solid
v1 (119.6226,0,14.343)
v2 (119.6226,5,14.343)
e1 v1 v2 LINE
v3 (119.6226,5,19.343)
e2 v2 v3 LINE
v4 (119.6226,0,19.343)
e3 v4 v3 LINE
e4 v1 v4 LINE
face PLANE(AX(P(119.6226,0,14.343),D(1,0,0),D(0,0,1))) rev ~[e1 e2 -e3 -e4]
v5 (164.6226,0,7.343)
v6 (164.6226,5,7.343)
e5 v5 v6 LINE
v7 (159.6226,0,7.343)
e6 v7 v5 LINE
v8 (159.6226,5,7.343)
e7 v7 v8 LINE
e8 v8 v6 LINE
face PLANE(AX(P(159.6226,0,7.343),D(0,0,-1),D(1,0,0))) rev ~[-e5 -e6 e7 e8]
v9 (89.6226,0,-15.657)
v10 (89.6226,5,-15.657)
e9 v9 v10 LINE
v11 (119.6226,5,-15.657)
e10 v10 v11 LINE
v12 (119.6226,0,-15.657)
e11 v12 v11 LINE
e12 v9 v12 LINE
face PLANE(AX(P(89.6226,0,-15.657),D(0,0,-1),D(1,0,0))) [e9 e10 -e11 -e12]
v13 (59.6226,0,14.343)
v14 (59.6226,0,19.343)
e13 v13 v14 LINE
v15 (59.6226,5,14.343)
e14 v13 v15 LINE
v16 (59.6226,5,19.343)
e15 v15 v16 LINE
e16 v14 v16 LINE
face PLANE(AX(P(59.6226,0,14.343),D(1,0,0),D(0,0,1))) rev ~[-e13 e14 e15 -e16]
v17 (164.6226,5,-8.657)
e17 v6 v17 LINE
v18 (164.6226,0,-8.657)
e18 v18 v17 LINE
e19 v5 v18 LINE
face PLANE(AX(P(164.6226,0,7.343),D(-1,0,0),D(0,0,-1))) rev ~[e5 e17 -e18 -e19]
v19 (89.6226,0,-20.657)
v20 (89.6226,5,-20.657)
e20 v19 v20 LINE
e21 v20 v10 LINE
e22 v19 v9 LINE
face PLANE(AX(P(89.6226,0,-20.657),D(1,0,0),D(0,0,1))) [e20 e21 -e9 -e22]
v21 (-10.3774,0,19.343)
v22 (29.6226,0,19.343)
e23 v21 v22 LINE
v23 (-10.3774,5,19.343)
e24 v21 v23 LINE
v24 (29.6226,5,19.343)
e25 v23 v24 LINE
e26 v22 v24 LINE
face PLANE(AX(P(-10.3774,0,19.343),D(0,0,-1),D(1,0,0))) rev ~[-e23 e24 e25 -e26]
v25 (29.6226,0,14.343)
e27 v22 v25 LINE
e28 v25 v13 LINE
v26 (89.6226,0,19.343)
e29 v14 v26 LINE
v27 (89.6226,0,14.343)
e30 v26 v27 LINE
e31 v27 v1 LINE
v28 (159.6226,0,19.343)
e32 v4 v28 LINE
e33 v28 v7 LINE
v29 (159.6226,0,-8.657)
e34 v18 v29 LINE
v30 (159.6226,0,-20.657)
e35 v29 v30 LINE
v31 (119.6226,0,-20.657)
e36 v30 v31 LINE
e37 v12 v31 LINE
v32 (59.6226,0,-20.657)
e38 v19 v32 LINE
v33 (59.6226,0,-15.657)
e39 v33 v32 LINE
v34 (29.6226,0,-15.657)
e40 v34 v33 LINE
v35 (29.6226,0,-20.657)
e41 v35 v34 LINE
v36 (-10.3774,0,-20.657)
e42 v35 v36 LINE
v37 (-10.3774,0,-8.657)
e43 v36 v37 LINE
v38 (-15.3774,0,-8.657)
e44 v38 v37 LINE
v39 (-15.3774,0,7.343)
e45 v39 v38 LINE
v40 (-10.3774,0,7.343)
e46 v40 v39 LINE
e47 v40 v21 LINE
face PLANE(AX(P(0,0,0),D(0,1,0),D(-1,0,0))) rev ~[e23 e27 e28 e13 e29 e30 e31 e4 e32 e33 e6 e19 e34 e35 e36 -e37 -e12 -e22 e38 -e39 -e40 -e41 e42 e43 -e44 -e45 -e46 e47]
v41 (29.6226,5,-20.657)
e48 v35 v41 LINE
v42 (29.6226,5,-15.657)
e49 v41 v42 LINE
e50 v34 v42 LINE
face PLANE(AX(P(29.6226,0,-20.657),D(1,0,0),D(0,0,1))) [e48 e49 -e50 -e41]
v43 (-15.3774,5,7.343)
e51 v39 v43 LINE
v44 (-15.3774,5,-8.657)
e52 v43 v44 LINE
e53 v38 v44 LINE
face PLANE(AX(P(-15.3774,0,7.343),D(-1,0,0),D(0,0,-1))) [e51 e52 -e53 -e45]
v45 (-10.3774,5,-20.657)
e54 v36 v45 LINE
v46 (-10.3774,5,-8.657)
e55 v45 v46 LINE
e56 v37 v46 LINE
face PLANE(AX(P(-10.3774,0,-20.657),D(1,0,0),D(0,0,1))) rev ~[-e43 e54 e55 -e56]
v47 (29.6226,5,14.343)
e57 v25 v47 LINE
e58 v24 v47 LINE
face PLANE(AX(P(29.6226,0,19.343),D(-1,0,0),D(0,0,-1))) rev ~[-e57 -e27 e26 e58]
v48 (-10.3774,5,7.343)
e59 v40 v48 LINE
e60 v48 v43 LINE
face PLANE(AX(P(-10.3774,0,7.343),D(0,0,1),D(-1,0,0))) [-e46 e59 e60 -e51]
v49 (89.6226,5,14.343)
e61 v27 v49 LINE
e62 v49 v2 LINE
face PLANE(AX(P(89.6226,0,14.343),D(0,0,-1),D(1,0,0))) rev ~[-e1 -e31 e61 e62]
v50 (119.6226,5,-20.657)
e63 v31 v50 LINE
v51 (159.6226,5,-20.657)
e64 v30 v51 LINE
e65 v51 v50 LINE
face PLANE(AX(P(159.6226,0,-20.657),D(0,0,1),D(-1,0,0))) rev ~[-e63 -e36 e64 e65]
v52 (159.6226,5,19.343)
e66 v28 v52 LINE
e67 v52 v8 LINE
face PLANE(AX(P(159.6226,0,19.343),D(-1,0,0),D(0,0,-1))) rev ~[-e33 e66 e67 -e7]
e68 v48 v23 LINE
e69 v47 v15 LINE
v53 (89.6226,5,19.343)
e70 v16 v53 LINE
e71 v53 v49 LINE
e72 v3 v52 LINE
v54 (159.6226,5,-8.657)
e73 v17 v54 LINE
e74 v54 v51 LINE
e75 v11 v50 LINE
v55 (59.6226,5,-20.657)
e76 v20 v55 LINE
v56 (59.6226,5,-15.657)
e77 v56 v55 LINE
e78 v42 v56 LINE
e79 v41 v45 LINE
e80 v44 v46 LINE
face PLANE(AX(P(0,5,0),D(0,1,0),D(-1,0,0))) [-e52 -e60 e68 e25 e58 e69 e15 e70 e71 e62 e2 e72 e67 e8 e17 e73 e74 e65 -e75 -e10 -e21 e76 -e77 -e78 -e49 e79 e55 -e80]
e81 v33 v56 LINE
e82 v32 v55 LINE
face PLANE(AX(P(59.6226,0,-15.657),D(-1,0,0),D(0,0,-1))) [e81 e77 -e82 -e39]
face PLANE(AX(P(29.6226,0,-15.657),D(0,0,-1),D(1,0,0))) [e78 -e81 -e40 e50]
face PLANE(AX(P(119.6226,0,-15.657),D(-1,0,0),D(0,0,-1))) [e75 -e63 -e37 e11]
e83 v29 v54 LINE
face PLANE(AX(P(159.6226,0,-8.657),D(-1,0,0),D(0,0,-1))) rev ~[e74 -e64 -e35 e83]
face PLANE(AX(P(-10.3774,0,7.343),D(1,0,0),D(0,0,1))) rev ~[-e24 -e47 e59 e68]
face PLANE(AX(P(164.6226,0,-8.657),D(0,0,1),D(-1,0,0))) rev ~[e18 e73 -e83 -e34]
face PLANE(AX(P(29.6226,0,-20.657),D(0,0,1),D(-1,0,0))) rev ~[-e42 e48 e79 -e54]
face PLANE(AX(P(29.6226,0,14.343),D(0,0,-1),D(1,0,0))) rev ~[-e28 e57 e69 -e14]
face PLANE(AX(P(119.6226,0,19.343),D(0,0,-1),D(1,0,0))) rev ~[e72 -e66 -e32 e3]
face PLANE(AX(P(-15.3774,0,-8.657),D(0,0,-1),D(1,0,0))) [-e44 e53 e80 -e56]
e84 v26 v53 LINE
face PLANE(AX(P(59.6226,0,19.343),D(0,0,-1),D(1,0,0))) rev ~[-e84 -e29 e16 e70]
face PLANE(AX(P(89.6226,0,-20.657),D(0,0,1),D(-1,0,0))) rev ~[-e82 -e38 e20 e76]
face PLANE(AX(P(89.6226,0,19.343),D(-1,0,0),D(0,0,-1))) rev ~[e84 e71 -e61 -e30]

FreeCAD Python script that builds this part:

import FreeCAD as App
import Part
import Sketcher


def add_polygon(sketch, points):
    """Adds a closed chain of lines whose ends are joined by coincident constraints."""
    first, n = sketch.GeometryCount, len(points)
    for a, b in zip(points, points[1:] + points[:1]):
        sketch.addGeometry(Part.LineSegment(App.Vector(*a, 0), App.Vector(*b, 0)), False)
    for i in range(n):
        sketch.addConstraint(Sketcher.Constraint("Coincident", first + i, 2, first + (i + 1) % n, 1))

doc = App.newDocument("Part")
params = doc.addObject("Spreadsheet::Sheet", "Params")
for row, (alias, value) in enumerate([
    ("sketch1_width", "40 mm"),
    ("sketch1_width2", "30 mm"),
    ("sketch1_width3", "5 mm"),
    ("sketch1_height", "12 mm"),
    ("sketch1_height2", "16 mm"),
    ("pad1_length", "5 mm"),
], start=1):
    params.set(f"A{row}", alias)
    params.set(f"B{row}", "=" + value)
    params.setAlias(f"B{row}", alias)

body = doc.addObject("PartDesign::Body", "Body")

sketch1 = body.newObject("Sketcher::SketchObject", "Sketch")
sketch1.AttachmentSupport = (doc.getObject("XZ_Plane"), [""])
sketch1.MapMode = "FlatFace"
add_polygon(sketch1, [(-10, 7), (-10, 19), (30, 19), (30, 14), (60, 14), (60, 19), (90, 19), (90, 14), (120, 14), (120, 19), (160, 19), (160, 7), (165, 7), (165, -9), (160, -9), (160, -21), (120, -21), (120, -16), (90, -16), (90, -21), (60, -21), (60, -16), (30, -16), (30, -21), (-10, -21), (-10, -9), (-15, -9), (-15, 7)])
sketch1.addConstraint(Sketcher.Constraint("Vertical", 0))
sketch1.addConstraint(Sketcher.Constraint("Horizontal", 1))
sketch1.addConstraint(Sketcher.Constraint("Vertical", 2))
sketch1.addConstraint(Sketcher.Constraint("Horizontal", 3))
sketch1.addConstraint(Sketcher.Constraint("Vertical", 4))
sketch1.addConstraint(Sketcher.Constraint("Horizontal", 5))
sketch1.addConstraint(Sketcher.Constraint("Vertical", 6))
sketch1.addConstraint(Sketcher.Constraint("Horizontal", 7))
sketch1.addConstraint(Sketcher.Constraint("Vertical", 8))
sketch1.addConstraint(Sketcher.Constraint("Horizontal", 9))
sketch1.addConstraint(Sketcher.Constraint("Vertical", 10))
sketch1.addConstraint(Sketcher.Constraint("Horizontal", 11))
sketch1.addConstraint(Sketcher.Constraint("Vertical", 12))
sketch1.addConstraint(Sketcher.Constraint("Horizontal", 13))
sketch1.addConstraint(Sketcher.Constraint("Vertical", 14))
sketch1.addConstraint(Sketcher.Constraint("Horizontal", 15))
sketch1.addConstraint(Sketcher.Constraint("Vertical", 16))
sketch1.addConstraint(Sketcher.Constraint("Horizontal", 17))
sketch1.addConstraint(Sketcher.Constraint("Vertical", 18))
sketch1.addConstraint(Sketcher.Constraint("Horizontal", 19))
sketch1.addConstraint(Sketcher.Constraint("Vertical", 20))
sketch1.addConstraint(Sketcher.Constraint("Horizontal", 21))
sketch1.addConstraint(Sketcher.Constraint("Vertical", 22))
sketch1.addConstraint(Sketcher.Constraint("Horizontal", 23))
sketch1.addConstraint(Sketcher.Constraint("Vertical", 24))
sketch1.addConstraint(Sketcher.Constraint("Horizontal", 25))
sketch1.addConstraint(Sketcher.Constraint("Vertical", 26))
sketch1.addConstraint(Sketcher.Constraint("Horizontal", 27))
sketch1.addConstraint(Sketcher.Constraint("Horizontal", 1, 2, 4, 2))
sketch1.addConstraint(Sketcher.Constraint("Horizontal", 3, 2, 6, 2))
sketch1.addConstraint(Sketcher.Constraint("Horizontal", 5, 2, 8, 2))
sketch1.addConstraint(Sketcher.Constraint("Horizontal", 15, 2, 18, 2))
sketch1.addConstraint(Sketcher.Constraint("Horizontal", 17, 2, 20, 2))
sketch1.addConstraint(Sketcher.Constraint("Horizontal", 19, 2, 22, 2))
sketch1.addConstraint(Sketcher.Constraint("Horizontal", 13, 2, 24, 2))
sketch1.addConstraint(Sketcher.Constraint("Horizontal", 11, 2, 26, 2))
sketch1.addConstraint(Sketcher.Constraint("Vertical", 10, 2, 13, 2))
sketch1.addConstraint(Sketcher.Constraint("Vertical", 8, 2, 15, 2))
sketch1.addConstraint(Sketcher.Constraint("Vertical", 6, 2, 17, 2))
sketch1.addConstraint(Sketcher.Constraint("Vertical", 4, 2, 19, 2))
sketch1.addConstraint(Sketcher.Constraint("Vertical", 2, 2, 21, 2))
sketch1.addConstraint(Sketcher.Constraint("Vertical", 0, 2, 23, 2))
sketch1.addConstraint(Sketcher.Constraint("Equal", 3, 5))
sketch1.addConstraint(Sketcher.Constraint("Equal", 5, 7))
sketch1.addConstraint(Sketcher.Constraint("Equal", 1, 9))
sketch1.addConstraint(Sketcher.Constraint("Equal", 13, 25))
sketch1.addConstraint(Sketcher.Constraint("Equal", 27, 2))
sketch1.addConstraint(Sketcher.Constraint("Equal", 10, 14))
sketch1.addConstraint(Sketcher.Constraint("Equal", 8, 16))
sketch1.addConstraint(Sketcher.Constraint("DistanceX", 1, 1, 1, 2, 40.0))
sketch1.addConstraint(Sketcher.Constraint("DistanceX", 3, 1, 3, 2, 30.0))
sketch1.addConstraint(Sketcher.Constraint("DistanceX", 11, 1, 11, 2, 5.0))
sketch1.addConstraint(Sketcher.Constraint("DistanceY", 0, 1, 0, 2, 12.0))
sketch1.addConstraint(Sketcher.Constraint("DistanceY", 12, 2, 12, 1, 16.0))
sketch1.addConstraint(Sketcher.Constraint("DistanceY", -1, 1, 0, 2, 19.343))
sketch1.addConstraint(Sketcher.Constraint("DistanceX", 0, 2, -1, 1, 10.3774))
sketch1.setExpression("Constraints[77]", "Params.sketch1_width")
sketch1.setExpression("Constraints[78]", "Params.sketch1_width2")
sketch1.setExpression("Constraints[79]", "Params.sketch1_width3")
sketch1.setExpression("Constraints[80]", "Params.sketch1_height")
sketch1.setExpression("Constraints[81]", "Params.sketch1_height2")
pad1 = body.newObject("PartDesign::Pad", "Pad")
pad1.Profile = sketch1
pad1.setExpression("Length", "Params.pad1_length")
pad1.Reversed = True

doc.recompute()
